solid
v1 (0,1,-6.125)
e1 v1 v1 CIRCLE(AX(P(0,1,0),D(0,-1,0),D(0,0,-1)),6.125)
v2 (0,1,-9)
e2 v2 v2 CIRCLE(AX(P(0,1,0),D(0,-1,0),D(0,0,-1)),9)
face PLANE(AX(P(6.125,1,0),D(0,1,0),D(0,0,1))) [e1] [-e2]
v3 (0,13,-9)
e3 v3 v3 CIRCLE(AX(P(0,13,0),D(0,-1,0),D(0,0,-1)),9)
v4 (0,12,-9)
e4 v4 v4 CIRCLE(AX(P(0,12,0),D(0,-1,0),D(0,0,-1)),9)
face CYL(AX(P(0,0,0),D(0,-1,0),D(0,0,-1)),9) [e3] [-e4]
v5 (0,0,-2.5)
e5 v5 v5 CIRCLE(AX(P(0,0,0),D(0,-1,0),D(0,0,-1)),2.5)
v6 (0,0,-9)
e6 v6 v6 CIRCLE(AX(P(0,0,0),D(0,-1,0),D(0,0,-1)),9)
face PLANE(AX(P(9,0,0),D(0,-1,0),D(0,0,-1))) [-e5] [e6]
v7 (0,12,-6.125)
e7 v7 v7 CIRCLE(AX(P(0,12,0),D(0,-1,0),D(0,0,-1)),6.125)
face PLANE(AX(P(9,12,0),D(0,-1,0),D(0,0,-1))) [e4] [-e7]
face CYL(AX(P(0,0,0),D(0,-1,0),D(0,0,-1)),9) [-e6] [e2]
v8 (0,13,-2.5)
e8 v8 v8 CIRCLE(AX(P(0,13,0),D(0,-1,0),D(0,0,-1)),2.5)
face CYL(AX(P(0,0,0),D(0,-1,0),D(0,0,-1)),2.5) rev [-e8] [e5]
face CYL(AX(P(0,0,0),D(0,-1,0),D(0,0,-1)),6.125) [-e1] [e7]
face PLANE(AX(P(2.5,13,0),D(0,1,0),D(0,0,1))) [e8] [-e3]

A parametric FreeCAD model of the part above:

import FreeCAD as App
import Part
import Sketcher

V = App.Vector
Q = App.Units.Quantity

doc = App.newDocument("Part")
body = doc.addObject("PartDesign::Body", "Body")

# Sketch on XY plane
sketch1 = body.newObject("Sketcher::SketchObject", "Sketch")
sketch1.AttachmentSupport = (doc.getObject("XY_Plane"), [""])
sketch1.MapMode = "FlatFace"
sketch1.addGeometry([
    Part.LineSegment(V(2.5, 13, 0), V(2.5, 0, 0)),  # 0
    Part.LineSegment(V(2.5, 0, 0), V(9, 0, 0)),  # 1
    Part.LineSegment(V(9, 0, 0), V(9, 1, 0)),  # 2
    Part.LineSegment(V(9, 1, 0), V(6.1, 1, 0)),  # 3
    Part.LineSegment(V(6.1, 1, 0), V(6.1, 12, 0)),  # 4
    Part.LineSegment(V(6.1, 12, 0), V(9, 12, 0)),  # 5
    Part.LineSegment(V(9, 12, 0), V(9, 13, 0)),  # 6
    Part.LineSegment(V(9, 13, 0), V(2.5, 13, 0)),  # 7
], False)
sketch1.addConstraint([
    Sketcher.Constraint("Coincident", 0, 2, 1, 1),
    Sketcher.Constraint("Coincident", 1, 2, 2, 1),
    Sketcher.Constraint("Coincident", 2, 2, 3, 1),
    Sketcher.Constraint("Coincident", 3, 2, 4, 1),
    Sketcher.Constraint("Coincident", 4, 2, 5, 1),
    Sketcher.Constraint("Coincident", 5, 2, 6, 1),
    Sketcher.Constraint("Coincident", 6, 2, 7, 1),
    Sketcher.Constraint("Coincident", 7, 2, 0, 1),
    Sketcher.Constraint("Vertical", 0),
    Sketcher.Constraint("Horizontal", 1),
    Sketcher.Constraint("Vertical", 2),
    Sketcher.Constraint("Horizontal", 3),
    Sketcher.Constraint("Vertical", 4),
    Sketcher.Constraint("Horizontal", 5),
    Sketcher.Constraint("Vertical", 6),
    Sketcher.Constraint("Horizontal", 7),
    Sketcher.Constraint("PointOnObject", 0, 2, -1),
    Sketcher.Constraint("Vertical", 2, 2, 5, 2),
    Sketcher.Constraint("Equal", 2, 6),
    Sketcher.Constraint("DistanceY", 0, 2, 0, 1, Q("13 mm")),
    Sketcher.Constraint("DistanceY", 2, 1, 2, 2, Q("1 mm")),
    Sketcher.Constraint("DistanceX", 1, 1, 1, 2, Q("6.5 mm")),
    Sketcher.Constraint("DistanceX", -1, 1, 1, 2, Q("9 mm")),
    Sketcher.Constraint("DistanceX", 3, 2, 3, 1, Q("2.875 mm")),
])
revolution = body.newObject("PartDesign::Revolution", "Revolution")
revolution.Profile = sketch1
revolution.ReferenceAxis = (sketch1, ["V_Axis"])
revolution.Angle = 360

doc.recompute()
